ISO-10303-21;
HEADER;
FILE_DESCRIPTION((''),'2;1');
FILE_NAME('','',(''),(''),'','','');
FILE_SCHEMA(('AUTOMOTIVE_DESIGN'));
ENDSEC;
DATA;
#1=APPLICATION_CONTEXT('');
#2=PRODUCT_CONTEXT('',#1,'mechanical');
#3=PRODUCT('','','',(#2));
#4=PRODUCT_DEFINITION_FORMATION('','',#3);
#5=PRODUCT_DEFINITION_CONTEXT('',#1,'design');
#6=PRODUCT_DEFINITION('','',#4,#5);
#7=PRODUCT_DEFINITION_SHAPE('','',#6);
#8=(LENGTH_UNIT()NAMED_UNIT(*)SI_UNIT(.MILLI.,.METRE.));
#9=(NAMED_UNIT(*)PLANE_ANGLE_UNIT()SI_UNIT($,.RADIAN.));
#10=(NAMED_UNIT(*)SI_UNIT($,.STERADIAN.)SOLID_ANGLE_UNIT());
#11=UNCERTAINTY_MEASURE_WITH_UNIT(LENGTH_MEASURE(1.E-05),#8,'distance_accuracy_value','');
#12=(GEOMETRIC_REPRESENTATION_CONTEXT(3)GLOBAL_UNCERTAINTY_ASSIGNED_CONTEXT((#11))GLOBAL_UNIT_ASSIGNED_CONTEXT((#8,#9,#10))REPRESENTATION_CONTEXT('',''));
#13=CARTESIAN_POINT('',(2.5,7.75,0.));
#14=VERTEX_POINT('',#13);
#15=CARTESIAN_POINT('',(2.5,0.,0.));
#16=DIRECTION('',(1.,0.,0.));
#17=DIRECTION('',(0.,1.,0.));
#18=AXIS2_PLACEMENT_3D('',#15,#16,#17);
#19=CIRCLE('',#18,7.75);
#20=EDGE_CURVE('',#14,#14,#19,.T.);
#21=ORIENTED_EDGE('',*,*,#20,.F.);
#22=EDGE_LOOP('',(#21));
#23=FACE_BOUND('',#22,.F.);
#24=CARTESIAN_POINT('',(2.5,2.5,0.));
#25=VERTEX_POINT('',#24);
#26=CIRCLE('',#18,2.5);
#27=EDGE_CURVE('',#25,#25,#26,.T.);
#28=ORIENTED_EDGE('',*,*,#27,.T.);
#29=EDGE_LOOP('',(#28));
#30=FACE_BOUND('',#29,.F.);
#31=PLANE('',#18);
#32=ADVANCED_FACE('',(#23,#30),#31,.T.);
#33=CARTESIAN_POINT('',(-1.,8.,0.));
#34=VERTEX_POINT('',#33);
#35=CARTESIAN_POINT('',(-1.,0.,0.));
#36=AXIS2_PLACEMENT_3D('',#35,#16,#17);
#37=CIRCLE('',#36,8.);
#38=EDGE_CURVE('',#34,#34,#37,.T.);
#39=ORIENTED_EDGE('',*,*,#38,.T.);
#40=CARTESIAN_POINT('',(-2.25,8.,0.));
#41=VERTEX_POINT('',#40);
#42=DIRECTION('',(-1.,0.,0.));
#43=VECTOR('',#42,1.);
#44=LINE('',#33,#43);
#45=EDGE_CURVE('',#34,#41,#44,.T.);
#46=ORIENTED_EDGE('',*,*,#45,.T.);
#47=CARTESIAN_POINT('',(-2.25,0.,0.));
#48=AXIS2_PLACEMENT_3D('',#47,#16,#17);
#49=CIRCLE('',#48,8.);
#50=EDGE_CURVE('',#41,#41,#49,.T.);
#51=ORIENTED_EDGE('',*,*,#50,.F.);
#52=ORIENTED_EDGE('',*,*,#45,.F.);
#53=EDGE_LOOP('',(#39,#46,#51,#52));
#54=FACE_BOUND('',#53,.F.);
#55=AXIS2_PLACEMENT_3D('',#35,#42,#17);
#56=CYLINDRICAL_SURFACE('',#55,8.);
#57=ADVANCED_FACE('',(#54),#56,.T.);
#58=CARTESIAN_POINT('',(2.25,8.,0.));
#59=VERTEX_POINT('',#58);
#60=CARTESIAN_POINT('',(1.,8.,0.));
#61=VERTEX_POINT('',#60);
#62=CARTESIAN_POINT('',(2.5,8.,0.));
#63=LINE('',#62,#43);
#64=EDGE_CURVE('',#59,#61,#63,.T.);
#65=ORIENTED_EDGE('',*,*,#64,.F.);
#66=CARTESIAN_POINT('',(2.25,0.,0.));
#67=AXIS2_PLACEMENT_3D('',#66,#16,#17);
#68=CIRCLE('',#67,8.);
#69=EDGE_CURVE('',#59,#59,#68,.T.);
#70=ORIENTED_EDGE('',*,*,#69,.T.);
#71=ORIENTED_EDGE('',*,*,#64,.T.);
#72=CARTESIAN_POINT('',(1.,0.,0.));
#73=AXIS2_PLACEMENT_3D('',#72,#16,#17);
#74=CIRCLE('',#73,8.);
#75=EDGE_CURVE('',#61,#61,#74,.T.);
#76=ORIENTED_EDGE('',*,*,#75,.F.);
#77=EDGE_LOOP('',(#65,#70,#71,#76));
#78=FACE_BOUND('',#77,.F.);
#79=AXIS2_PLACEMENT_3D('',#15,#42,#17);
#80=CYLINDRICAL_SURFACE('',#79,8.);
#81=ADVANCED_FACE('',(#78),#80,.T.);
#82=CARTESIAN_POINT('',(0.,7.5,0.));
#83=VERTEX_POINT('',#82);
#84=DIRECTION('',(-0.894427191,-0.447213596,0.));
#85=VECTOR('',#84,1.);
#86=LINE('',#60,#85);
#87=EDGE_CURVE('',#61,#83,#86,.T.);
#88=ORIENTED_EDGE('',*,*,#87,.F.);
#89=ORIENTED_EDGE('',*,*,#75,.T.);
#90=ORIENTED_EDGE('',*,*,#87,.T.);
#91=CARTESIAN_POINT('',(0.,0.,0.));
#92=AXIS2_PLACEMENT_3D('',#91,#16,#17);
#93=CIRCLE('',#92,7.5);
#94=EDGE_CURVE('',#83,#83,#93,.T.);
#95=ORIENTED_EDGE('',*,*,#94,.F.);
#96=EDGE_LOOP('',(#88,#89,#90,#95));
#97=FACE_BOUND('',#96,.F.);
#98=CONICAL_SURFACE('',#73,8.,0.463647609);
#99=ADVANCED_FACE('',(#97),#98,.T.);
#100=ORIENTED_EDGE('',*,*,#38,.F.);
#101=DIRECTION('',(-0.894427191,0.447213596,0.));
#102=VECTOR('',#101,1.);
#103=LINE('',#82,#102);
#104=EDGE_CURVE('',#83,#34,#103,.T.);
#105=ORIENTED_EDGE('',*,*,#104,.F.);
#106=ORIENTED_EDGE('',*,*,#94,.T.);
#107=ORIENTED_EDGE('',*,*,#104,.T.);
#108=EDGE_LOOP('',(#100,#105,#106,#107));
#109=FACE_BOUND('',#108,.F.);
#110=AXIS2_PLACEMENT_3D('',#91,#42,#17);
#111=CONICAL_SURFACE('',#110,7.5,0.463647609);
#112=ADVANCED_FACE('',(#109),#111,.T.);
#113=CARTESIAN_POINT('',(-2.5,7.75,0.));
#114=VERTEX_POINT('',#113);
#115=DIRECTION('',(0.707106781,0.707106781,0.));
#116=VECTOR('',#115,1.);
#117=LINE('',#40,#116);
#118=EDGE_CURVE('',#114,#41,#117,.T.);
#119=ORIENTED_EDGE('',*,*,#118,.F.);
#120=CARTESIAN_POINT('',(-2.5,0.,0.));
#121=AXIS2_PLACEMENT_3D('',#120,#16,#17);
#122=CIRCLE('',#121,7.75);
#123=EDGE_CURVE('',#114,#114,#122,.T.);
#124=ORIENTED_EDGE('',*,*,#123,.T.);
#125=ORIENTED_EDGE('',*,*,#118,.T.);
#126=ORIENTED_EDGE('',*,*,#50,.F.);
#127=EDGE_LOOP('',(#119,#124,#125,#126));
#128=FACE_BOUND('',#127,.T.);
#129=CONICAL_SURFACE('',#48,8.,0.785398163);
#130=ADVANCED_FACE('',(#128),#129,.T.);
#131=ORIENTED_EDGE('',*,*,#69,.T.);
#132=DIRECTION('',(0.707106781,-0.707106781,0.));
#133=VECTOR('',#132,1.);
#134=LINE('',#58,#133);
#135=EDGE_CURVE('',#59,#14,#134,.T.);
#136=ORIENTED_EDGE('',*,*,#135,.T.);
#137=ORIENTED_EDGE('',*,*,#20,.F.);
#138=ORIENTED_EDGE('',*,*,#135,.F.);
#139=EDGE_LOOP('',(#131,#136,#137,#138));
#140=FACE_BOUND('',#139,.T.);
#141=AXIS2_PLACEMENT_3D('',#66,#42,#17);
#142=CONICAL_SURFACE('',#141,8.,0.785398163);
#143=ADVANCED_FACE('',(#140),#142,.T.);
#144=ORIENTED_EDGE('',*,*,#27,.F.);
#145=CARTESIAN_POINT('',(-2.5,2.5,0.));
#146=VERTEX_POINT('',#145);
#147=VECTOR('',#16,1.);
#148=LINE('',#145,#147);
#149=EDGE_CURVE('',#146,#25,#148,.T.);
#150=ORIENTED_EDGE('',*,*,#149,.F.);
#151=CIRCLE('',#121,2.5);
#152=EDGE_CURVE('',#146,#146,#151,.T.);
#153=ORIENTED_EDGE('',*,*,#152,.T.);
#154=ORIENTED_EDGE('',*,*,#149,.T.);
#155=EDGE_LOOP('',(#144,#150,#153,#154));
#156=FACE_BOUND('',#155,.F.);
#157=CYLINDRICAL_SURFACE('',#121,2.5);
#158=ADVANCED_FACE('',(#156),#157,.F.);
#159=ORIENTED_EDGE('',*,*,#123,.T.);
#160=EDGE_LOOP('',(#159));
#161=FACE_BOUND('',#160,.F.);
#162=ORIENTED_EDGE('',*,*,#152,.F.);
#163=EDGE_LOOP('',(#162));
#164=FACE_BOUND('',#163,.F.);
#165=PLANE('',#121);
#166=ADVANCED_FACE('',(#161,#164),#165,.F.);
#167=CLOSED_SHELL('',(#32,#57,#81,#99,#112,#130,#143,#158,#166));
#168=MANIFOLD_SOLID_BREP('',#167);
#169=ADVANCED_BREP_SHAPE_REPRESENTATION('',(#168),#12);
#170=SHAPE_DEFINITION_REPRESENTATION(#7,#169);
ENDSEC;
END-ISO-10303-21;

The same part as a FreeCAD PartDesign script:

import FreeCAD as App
import Part
import Sketcher

V = App.Vector


def edges_at(feature, points):
    """Names of the edges that pass closest to the given points."""
    edges = feature.Shape.Edges
    near = lambda p: min(range(len(edges)), key=lambda i: edges[i].distToShape(Part.Vertex(*p))[0])
    return sorted({f"Edge{near(p) + 1}" for p in points})


def add_polygon(sketch, points):
    """Adds a closed chain of lines whose ends are joined by coincident constraints."""
    first, n = sketch.GeometryCount, len(points)
    for a, b in zip(points, points[1:] + points[:1]):
        sketch.addGeometry(Part.LineSegment(App.Vector(*a, 0), App.Vector(*b, 0)), False)
    for i in range(n):
        sketch.addConstraint(Sketcher.Constraint("Coincident", first + i, 2, first + (i + 1) % n, 1))

doc = App.newDocument("Part")
body = doc.addObject("PartDesign::Body", "Body")

# Sketch on XY plane
sketch1 = body.newObject("Sketcher::SketchObject", "Sketch")
sketch1.AttachmentSupport = (doc.getObject("XY_Plane"), [""])
sketch1.MapMode = "FlatFace"
add_polygon(sketch1, [(-2.5, 8), (-2.5, 2.5), (2.5, 2.5), (2.5, 8), (1, 8), (0, 7.5), (-1, 8)])  # lines 0-6
sketch1.addConstraint(Sketcher.Constraint("Vertical", 0))
sketch1.addConstraint(Sketcher.Constraint("Horizontal", 1))
sketch1.addConstraint(Sketcher.Constraint("Vertical", 2))
sketch1.addConstraint(Sketcher.Constraint("Horizontal", 3))
sketch1.addConstraint(Sketcher.Constraint("Horizontal", 6))
sketch1.addConstraint(Sketcher.Constraint("Symmetric", 3, 2, 5, 2, -2))
sketch1.addConstraint(Sketcher.Constraint("PointOnObject", 4, 2, -2))
sketch1.addConstraint(Sketcher.Constraint("Equal", 3, 6))
sketch1.addConstraint(Sketcher.Constraint("DistanceX", 1, 1, 1, 2, 5.0))
sketch1.addConstraint(Sketcher.Constraint("DistanceY", -1, 1, 2, 2, 8.0))
sketch1.addConstraint(Sketcher.Constraint("DistanceY", 0, 2, 4, 2, 5.0))
sketch1.addConstraint(Sketcher.Constraint("DistanceX", 5, 2, 3, 2, 2.0))
sketch1.addConstraint(Sketcher.Constraint("DistanceY", -1, 1, 0, 2, 2.5))
revolution = body.newObject("PartDesign::Revolution", "Revolution")
revolution.Profile = sketch1
revolution.ReferenceAxis = (sketch1, ["H_Axis"])
revolution.Angle = 360
doc.recompute()

chamfer = body.newObject("PartDesign::Chamfer", "Chamfer")
chamfer.Base = (revolution, edges_at(revolution, [(-2.5, -8, 0), (2.5, -8, 0)]))
chamfer.Size = 0.25

doc.recompute()
